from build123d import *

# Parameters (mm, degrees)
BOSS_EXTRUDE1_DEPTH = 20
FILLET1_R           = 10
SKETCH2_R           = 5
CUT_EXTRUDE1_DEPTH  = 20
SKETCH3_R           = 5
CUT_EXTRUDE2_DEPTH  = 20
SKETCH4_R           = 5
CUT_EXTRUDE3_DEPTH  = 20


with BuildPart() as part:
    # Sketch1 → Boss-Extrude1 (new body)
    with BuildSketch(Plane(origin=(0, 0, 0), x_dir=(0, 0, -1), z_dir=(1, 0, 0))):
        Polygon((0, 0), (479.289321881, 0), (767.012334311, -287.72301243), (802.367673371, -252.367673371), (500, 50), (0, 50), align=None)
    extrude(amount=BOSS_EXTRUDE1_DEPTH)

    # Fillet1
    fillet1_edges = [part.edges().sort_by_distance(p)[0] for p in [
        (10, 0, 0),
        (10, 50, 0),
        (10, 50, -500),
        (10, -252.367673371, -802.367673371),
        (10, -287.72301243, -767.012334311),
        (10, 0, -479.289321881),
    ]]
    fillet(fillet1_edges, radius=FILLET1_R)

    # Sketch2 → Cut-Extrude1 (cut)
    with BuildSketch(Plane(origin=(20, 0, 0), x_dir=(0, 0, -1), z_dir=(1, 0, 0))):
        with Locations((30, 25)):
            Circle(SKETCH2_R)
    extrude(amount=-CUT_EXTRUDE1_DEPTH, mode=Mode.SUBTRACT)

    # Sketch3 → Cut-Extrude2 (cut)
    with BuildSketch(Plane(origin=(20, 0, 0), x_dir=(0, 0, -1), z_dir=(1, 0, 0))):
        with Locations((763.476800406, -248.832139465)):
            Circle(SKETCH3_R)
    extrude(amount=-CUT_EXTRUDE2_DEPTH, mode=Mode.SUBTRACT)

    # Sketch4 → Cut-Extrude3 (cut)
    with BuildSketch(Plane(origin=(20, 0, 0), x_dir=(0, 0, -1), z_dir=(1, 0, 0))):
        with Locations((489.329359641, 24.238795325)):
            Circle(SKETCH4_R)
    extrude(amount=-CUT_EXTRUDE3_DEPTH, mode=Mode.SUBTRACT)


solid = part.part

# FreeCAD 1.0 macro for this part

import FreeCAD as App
import Part
import Sketcher

V = App.Vector
Q = App.Units.Quantity


def edges_at(feature, points):
    """Names of the edges that pass closest to the given points."""
    edges = feature.Shape.Edges
    near = lambda p: min(range(len(edges)), key=lambda i: edges[i].distToShape(Part.Vertex(*p))[0])
    return sorted({f"Edge{near(p) + 1}" for p in points})


def add_polygon(sketch, points):
    """Adds a closed chain of lines whose ends are joined by coincident constraints."""
    first, n = sketch.GeometryCount, len(points)
    for a, b in zip(points, points[1:] + points[:1]):
        sketch.addGeometry(Part.LineSegment(App.Vector(*a, 0), App.Vector(*b, 0)), False)
    for i in range(n):
        sketch.addConstraint(Sketcher.Constraint("Coincident", first + i, 2, first + (i + 1) % n, 1))

doc = App.newDocument("Part")
body = doc.addObject("PartDesign::Body", "Body")

# Sketch on YZ plane
sketch1 = body.newObject("Sketcher::SketchObject", "Sketch")
sketch1.AttachmentSupport = (doc.getObject("YZ_Plane"), [""])
sketch1.MapMode = "FlatFace"
add_polygon(sketch1, [(0, 0), (0, -479), (-288, -767), (-252, -802), (50, -500), (50, 0)])  # lines 0-5
sketch1.addConstraint(Sketcher.Constraint("Vertical", 0))
sketch1.addConstraint(Sketcher.Constraint("Vertical", 4))
sketch1.addConstraint(Sketcher.Constraint("Horizontal", 5))
sketch1.addConstraint(Sketcher.Constraint("Coincident", 5, 2, -1, 1))
sketch1.addConstraint(Sketcher.Constraint("Perpendicular", 1, 2))
sketch1.addConstraint(Sketcher.Constraint("Perpendicular", 2, 3))
sketch1.addConstraint(Sketcher.Constraint("DistanceX", 5, 2, 5, 1, Q("50 mm")))
sketch1.addConstraint(Sketcher.Constraint("DistanceY", 4, 1, 4, 2, Q("500 mm")))
sketch1.addConstraint(Sketcher.Constraint("Angle", 1, Q("-135 deg")))
sketch1.addConstraint(Sketcher.Constraint("Distance", 2, Q("50 mm")))
sketch1.addConstraint(Sketcher.Constraint("DistanceY", 2, 2, 0, 2, Q("323.078351 mm")))
pad1 = body.newObject("PartDesign::Pad", "Pad")
pad1.Profile = sketch1
pad1.Length = 20
doc.recompute()

fillet = body.newObject("PartDesign::Fillet", "Fillet")
fillet.Base = (pad1, edges_at(pad1, [
    (10, 0, 0),
    (10, 50, 0),
    (10, 50, -500),
    (10, -252.368, -802.368),
    (10, -287.723, -767.012),
    (10, 0, -479.289),
]))
fillet.Radius = 10

# Sketch on YZ plane
sketch2 = body.newObject("Sketcher::SketchObject", "Sketch001")
sketch2.AttachmentSupport = (doc.getObject("YZ_Plane"), [""])
sketch2.MapMode = "FlatFace"
sketch2.AttachmentOffset = App.Placement(V(0, 0, 20), App.Rotation())
sketch2.addGeometry(Part.Circle(V(25, -30, 0), V(0, 0, 1), 5), False)
sketch2.addConstraint(Sketcher.Constraint("Diameter", 0, Q("10 mm")))
sketch2.addConstraint(Sketcher.Constraint("DistanceX", -1, 1, 0, 3, Q("25 mm")))
sketch2.addConstraint(Sketcher.Constraint("DistanceY", 0, 3, -1, 1, Q("30 mm")))
pocket1 = body.newObject("PartDesign::Pocket", "Pocket")
pocket1.Profile = sketch2
pocket1.Length = 20

# Sketch on YZ plane
sketch3 = body.newObject("Sketcher::SketchObject", "Sketch002")
sketch3.AttachmentSupport = (doc.getObject("YZ_Plane"), [""])
sketch3.MapMode = "FlatFace"
sketch3.AttachmentOffset = App.Placement(V(0, 0, 20), App.Rotation())
sketch3.addGeometry(Part.Circle(V(-249, -763, 0), V(0, 0, 1), 5), False)
sketch3.addConstraint(Sketcher.Constraint("Diameter", 0, Q("10 mm")))
sketch3.addConstraint(Sketcher.Constraint("DistanceY", 0, 3, -1, 1, Q("763.4768 mm")))
sketch3.addConstraint(Sketcher.Constraint("DistanceX", 0, 3, -1, 1, Q("248.832139 mm")))
pocket2 = body.newObject("PartDesign::Pocket", "Pocket001")
pocket2.Profile = sketch3
pocket2.Length = 20

# Sketch on YZ plane
sketch4 = body.newObject("Sketcher::SketchObject", "Sketch003")
sketch4.AttachmentSupport = (doc.getObject("YZ_Plane"), [""])
sketch4.MapMode = "FlatFace"
sketch4.AttachmentOffset = App.Placement(V(0, 0, 20), App.Rotation())
sketch4.addGeometry(Part.Circle(V(24, -489, 0), V(0, 0, 1), 5), False)
sketch4.addConstraint(Sketcher.Constraint("Diameter", 0, Q("10 mm")))
sketch4.addConstraint(Sketcher.Constraint("DistanceY", 0, 3, -1, 1, Q("489.32936 mm")))
sketch4.addConstraint(Sketcher.Constraint("DistanceX", -1, 1, 0, 3, Q("24.238795 mm")))
pocket3 = body.newObject("PartDesign::Pocket", "Pocket002")
pocket3.Profile = sketch4
pocket3.Length = 20

doc.recompute()
